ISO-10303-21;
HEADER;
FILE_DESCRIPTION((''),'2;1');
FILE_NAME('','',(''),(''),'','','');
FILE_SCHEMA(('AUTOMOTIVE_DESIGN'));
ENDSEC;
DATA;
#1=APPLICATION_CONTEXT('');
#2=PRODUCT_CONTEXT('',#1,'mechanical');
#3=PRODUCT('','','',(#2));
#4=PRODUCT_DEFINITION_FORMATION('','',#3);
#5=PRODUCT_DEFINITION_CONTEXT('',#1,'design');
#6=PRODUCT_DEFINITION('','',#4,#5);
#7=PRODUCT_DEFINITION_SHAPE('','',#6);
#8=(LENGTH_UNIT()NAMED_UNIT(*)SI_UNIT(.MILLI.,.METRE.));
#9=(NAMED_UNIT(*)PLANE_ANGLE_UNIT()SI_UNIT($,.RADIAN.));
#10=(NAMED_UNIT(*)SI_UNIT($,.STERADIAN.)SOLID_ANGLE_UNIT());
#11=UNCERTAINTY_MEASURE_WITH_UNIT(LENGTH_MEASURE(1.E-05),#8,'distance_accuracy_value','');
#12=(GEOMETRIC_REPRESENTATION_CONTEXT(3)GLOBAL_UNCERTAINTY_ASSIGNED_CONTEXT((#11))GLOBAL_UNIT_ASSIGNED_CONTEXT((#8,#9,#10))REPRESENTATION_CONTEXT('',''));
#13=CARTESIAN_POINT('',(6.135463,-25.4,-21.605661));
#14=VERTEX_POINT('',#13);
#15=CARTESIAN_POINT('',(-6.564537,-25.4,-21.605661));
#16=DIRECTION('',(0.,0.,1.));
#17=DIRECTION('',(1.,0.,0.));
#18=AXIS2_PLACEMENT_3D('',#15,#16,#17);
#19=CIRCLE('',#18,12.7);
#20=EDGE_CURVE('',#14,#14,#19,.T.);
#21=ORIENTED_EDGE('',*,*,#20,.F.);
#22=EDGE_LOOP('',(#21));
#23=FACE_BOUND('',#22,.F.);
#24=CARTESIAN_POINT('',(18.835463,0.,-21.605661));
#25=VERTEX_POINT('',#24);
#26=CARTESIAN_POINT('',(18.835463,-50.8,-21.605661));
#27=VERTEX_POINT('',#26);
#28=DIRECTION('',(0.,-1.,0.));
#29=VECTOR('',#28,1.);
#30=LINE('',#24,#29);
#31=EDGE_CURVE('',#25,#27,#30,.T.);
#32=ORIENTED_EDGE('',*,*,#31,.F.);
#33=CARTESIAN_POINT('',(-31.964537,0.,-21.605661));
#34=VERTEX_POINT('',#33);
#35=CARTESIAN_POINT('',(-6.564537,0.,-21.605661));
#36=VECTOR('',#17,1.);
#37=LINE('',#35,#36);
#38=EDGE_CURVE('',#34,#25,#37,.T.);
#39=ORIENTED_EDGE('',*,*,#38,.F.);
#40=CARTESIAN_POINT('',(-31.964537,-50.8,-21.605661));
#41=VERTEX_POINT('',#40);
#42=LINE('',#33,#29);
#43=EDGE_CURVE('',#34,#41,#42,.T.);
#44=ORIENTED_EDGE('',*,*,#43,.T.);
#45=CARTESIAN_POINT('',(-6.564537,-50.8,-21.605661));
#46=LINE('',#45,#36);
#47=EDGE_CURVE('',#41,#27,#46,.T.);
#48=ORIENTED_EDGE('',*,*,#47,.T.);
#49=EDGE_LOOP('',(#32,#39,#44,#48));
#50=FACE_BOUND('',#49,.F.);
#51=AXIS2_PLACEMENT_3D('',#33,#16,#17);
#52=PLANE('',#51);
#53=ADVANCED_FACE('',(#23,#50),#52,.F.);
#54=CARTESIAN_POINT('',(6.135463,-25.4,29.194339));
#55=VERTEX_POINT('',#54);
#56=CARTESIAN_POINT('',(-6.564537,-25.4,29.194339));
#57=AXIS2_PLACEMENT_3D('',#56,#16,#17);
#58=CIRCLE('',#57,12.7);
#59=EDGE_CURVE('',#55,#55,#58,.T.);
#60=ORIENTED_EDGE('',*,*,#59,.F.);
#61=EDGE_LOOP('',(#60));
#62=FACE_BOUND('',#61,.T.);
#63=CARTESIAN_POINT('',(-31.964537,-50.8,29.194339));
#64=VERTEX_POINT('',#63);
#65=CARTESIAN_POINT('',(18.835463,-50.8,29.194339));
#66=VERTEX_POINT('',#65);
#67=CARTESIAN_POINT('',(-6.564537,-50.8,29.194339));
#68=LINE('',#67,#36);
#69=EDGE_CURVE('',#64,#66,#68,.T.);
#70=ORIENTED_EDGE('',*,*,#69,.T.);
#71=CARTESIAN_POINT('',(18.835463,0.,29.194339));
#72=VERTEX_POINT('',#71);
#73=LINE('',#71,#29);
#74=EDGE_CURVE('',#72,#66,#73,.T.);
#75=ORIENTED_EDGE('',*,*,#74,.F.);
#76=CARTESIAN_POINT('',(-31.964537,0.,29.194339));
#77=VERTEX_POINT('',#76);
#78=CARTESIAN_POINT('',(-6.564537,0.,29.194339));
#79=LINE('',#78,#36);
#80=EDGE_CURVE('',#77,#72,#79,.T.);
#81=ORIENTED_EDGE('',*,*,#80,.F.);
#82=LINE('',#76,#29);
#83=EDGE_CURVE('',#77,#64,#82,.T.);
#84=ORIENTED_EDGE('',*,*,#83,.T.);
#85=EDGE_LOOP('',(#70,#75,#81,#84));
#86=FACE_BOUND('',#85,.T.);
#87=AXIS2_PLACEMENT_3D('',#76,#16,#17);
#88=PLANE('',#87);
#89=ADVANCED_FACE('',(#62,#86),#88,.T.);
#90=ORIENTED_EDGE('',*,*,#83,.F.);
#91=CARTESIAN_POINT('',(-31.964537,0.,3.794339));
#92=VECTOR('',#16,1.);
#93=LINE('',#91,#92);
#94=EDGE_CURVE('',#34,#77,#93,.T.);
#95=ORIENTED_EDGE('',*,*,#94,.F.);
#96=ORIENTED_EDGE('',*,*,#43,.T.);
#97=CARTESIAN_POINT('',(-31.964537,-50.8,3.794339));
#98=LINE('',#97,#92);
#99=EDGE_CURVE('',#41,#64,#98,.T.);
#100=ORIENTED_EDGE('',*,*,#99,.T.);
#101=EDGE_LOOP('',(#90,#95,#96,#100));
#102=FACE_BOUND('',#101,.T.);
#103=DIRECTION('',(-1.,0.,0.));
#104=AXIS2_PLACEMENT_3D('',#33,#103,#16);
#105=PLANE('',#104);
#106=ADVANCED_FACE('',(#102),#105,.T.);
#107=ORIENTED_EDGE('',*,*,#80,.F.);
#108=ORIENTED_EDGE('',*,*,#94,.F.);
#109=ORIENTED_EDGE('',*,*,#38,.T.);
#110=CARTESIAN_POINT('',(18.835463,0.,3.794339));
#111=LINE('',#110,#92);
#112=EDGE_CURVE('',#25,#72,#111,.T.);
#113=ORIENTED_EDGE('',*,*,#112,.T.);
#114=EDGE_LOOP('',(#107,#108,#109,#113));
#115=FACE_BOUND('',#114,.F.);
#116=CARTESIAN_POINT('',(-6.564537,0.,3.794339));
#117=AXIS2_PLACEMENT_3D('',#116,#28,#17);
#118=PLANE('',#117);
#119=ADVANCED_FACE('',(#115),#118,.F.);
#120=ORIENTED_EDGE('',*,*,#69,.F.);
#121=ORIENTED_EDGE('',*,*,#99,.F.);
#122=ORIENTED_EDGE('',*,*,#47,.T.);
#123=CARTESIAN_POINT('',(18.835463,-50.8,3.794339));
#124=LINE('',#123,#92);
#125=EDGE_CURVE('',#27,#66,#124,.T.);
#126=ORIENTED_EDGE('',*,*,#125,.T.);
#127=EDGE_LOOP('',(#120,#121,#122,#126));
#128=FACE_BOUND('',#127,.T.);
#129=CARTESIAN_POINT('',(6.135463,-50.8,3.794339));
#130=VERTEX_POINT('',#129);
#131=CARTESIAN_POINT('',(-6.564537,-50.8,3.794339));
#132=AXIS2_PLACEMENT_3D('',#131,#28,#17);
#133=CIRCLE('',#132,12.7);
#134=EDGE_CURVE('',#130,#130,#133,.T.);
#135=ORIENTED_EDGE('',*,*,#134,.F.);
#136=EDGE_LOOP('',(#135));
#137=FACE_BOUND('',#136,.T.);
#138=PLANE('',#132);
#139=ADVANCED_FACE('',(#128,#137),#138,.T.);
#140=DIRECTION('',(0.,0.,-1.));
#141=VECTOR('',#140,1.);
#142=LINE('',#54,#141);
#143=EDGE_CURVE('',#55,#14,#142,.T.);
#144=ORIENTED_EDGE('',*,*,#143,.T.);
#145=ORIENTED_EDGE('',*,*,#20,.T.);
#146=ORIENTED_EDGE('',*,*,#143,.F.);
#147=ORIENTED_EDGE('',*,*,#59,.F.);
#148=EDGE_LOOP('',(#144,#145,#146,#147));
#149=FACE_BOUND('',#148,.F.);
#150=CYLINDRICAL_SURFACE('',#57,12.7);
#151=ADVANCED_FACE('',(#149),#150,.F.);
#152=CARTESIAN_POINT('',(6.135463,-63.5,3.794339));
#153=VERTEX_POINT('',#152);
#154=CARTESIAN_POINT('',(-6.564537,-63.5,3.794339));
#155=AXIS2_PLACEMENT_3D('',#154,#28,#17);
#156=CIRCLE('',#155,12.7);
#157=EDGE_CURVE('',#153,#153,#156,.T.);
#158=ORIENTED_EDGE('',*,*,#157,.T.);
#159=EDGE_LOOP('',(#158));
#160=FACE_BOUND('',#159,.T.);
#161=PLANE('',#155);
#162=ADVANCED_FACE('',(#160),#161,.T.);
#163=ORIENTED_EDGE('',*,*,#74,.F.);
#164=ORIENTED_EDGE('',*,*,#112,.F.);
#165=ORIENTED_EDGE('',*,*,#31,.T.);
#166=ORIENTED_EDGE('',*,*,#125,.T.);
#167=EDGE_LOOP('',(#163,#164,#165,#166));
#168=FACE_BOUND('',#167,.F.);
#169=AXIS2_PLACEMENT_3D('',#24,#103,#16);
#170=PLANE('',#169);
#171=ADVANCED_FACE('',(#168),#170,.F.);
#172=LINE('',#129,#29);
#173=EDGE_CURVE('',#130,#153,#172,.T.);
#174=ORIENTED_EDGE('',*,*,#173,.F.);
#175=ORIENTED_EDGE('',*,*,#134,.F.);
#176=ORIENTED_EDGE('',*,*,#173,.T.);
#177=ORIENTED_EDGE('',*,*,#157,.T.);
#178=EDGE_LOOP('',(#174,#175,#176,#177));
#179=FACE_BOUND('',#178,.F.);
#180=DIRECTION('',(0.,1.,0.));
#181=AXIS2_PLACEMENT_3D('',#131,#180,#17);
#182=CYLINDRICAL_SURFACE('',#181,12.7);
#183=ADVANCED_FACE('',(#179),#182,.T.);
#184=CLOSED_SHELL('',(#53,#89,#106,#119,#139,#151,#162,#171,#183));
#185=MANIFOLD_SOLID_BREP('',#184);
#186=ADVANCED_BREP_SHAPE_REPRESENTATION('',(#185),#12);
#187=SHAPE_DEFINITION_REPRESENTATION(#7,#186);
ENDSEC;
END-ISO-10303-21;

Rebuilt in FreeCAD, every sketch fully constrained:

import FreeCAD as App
import Part
import Sketcher

V = App.Vector
Q = App.Units.Quantity


def add_polygon(sketch, points):
    """Adds a closed chain of lines whose ends are joined by coincident constraints."""
    first, n = sketch.GeometryCount, len(points)
    for a, b in zip(points, points[1:] + points[:1]):
        sketch.addGeometry(Part.LineSegment(App.Vector(*a, 0), App.Vector(*b, 0)), False)
    for i in range(n):
        sketch.addConstraint(Sketcher.Constraint("Coincident", first + i, 2, first + (i + 1) % n, 1))

doc = App.newDocument("Part")
params = doc.addObject("Spreadsheet::Sheet", "Params")
for row, (alias, value) in enumerate([
    ("sketch1_width", "2 in"),
    ("pad1_length", "2 in"),
    ("sketch2_diameter", "1 in"),
    ("pad2_length", "0.5 in"),
    ("sketch3_diameter", "1 in"),
    ("pocket1_length", "2 in"),
], start=1):
    params.set(f"A{row}", alias)
    params.set(f"B{row}", "=" + value)
    params.setAlias(f"B{row}", alias)

body = doc.addObject("PartDesign::Body", "Body")

# Sketch on XZ plane
sketch1 = body.newObject("Sketcher::SketchObject", "Sketch")
sketch1.AttachmentSupport = (doc.getObject("XZ_Plane"), [""])
sketch1.MapMode = "FlatFace"
add_polygon(sketch1, [(-32, 29), (-32, -22), (19, -22), (19, 29)])  # lines 0-3
sketch1.addConstraint([
    Sketcher.Constraint("Vertical", 0),
    Sketcher.Constraint("Horizontal", 1),
    Sketcher.Constraint("Vertical", 2),
    Sketcher.Constraint("Horizontal", 3),
    Sketcher.Constraint("Equal", 3, 0),
    Sketcher.Constraint("DistanceX", 1, 1, 1, 2, Q("2 in")),
    Sketcher.Constraint("DistanceY", 0, 2, -1, 1, 21.605661),
    Sketcher.Constraint("DistanceX", 0, 2, -1, 1, 31.964537),
])
sketch1.setExpression("Constraints[9]", "Params.sketch1_width")
pad1 = body.newObject("PartDesign::Pad", "Pad")
pad1.Profile = sketch1
pad1.setExpression("Length", "Params.pad1_length")

# Sketch on XZ plane
sketch2 = body.newObject("Sketcher::SketchObject", "Sketch001")
sketch2.AttachmentSupport = (doc.getObject("XZ_Plane"), [""])
sketch2.MapMode = "FlatFace"
sketch2.AttachmentOffset = App.Placement(V(0, 0, 2 * 25.4), App.Rotation())
sketch2.addGeometry(Part.Circle(V(-7, 4, 0), V(0, 0, 1), 13), False)
sketch2.addConstraint([
    Sketcher.Constraint("Diameter", 0, Q("1 in")),
    Sketcher.Constraint("DistanceY", -1, 1, 0, 3, 3.794339),
    Sketcher.Constraint("DistanceX", 0, 3, -1, 1, 6.564537),
])
sketch2.setExpression("Constraints[0]", "Params.sketch2_diameter")
pad2 = body.newObject("PartDesign::Pad", "Pad001")
pad2.Profile = sketch2
pad2.setExpression("Length", "Params.pad2_length")

# Sketch on XY plane
sketch3 = body.newObject("Sketcher::SketchObject", "Sketch002")
sketch3.AttachmentSupport = (doc.getObject("XY_Plane"), [""])
sketch3.MapMode = "FlatFace"
sketch3.AttachmentOffset = App.Placement(V(0, 0, 29.194339), App.Rotation())
sketch3.addGeometry(Part.Circle(V(-7, -25, 0), V(0, 0, 1), 13), False)
sketch3.addConstraint([
    Sketcher.Constraint("Diameter", 0, Q("1 in")),
    Sketcher.Constraint("DistanceY", 0, 3, -1, 1, Q("1 in")),
    Sketcher.Constraint("DistanceX", 0, 3, -1, 1, 6.564537),
])
sketch3.setExpression("Constraints[0]", "Params.sketch3_diameter")
pocket1 = body.newObject("PartDesign::Pocket", "Pocket")
pocket1.Profile = sketch3
pocket1.setExpression("Length", "Params.pocket1_length")

doc.recompute()
